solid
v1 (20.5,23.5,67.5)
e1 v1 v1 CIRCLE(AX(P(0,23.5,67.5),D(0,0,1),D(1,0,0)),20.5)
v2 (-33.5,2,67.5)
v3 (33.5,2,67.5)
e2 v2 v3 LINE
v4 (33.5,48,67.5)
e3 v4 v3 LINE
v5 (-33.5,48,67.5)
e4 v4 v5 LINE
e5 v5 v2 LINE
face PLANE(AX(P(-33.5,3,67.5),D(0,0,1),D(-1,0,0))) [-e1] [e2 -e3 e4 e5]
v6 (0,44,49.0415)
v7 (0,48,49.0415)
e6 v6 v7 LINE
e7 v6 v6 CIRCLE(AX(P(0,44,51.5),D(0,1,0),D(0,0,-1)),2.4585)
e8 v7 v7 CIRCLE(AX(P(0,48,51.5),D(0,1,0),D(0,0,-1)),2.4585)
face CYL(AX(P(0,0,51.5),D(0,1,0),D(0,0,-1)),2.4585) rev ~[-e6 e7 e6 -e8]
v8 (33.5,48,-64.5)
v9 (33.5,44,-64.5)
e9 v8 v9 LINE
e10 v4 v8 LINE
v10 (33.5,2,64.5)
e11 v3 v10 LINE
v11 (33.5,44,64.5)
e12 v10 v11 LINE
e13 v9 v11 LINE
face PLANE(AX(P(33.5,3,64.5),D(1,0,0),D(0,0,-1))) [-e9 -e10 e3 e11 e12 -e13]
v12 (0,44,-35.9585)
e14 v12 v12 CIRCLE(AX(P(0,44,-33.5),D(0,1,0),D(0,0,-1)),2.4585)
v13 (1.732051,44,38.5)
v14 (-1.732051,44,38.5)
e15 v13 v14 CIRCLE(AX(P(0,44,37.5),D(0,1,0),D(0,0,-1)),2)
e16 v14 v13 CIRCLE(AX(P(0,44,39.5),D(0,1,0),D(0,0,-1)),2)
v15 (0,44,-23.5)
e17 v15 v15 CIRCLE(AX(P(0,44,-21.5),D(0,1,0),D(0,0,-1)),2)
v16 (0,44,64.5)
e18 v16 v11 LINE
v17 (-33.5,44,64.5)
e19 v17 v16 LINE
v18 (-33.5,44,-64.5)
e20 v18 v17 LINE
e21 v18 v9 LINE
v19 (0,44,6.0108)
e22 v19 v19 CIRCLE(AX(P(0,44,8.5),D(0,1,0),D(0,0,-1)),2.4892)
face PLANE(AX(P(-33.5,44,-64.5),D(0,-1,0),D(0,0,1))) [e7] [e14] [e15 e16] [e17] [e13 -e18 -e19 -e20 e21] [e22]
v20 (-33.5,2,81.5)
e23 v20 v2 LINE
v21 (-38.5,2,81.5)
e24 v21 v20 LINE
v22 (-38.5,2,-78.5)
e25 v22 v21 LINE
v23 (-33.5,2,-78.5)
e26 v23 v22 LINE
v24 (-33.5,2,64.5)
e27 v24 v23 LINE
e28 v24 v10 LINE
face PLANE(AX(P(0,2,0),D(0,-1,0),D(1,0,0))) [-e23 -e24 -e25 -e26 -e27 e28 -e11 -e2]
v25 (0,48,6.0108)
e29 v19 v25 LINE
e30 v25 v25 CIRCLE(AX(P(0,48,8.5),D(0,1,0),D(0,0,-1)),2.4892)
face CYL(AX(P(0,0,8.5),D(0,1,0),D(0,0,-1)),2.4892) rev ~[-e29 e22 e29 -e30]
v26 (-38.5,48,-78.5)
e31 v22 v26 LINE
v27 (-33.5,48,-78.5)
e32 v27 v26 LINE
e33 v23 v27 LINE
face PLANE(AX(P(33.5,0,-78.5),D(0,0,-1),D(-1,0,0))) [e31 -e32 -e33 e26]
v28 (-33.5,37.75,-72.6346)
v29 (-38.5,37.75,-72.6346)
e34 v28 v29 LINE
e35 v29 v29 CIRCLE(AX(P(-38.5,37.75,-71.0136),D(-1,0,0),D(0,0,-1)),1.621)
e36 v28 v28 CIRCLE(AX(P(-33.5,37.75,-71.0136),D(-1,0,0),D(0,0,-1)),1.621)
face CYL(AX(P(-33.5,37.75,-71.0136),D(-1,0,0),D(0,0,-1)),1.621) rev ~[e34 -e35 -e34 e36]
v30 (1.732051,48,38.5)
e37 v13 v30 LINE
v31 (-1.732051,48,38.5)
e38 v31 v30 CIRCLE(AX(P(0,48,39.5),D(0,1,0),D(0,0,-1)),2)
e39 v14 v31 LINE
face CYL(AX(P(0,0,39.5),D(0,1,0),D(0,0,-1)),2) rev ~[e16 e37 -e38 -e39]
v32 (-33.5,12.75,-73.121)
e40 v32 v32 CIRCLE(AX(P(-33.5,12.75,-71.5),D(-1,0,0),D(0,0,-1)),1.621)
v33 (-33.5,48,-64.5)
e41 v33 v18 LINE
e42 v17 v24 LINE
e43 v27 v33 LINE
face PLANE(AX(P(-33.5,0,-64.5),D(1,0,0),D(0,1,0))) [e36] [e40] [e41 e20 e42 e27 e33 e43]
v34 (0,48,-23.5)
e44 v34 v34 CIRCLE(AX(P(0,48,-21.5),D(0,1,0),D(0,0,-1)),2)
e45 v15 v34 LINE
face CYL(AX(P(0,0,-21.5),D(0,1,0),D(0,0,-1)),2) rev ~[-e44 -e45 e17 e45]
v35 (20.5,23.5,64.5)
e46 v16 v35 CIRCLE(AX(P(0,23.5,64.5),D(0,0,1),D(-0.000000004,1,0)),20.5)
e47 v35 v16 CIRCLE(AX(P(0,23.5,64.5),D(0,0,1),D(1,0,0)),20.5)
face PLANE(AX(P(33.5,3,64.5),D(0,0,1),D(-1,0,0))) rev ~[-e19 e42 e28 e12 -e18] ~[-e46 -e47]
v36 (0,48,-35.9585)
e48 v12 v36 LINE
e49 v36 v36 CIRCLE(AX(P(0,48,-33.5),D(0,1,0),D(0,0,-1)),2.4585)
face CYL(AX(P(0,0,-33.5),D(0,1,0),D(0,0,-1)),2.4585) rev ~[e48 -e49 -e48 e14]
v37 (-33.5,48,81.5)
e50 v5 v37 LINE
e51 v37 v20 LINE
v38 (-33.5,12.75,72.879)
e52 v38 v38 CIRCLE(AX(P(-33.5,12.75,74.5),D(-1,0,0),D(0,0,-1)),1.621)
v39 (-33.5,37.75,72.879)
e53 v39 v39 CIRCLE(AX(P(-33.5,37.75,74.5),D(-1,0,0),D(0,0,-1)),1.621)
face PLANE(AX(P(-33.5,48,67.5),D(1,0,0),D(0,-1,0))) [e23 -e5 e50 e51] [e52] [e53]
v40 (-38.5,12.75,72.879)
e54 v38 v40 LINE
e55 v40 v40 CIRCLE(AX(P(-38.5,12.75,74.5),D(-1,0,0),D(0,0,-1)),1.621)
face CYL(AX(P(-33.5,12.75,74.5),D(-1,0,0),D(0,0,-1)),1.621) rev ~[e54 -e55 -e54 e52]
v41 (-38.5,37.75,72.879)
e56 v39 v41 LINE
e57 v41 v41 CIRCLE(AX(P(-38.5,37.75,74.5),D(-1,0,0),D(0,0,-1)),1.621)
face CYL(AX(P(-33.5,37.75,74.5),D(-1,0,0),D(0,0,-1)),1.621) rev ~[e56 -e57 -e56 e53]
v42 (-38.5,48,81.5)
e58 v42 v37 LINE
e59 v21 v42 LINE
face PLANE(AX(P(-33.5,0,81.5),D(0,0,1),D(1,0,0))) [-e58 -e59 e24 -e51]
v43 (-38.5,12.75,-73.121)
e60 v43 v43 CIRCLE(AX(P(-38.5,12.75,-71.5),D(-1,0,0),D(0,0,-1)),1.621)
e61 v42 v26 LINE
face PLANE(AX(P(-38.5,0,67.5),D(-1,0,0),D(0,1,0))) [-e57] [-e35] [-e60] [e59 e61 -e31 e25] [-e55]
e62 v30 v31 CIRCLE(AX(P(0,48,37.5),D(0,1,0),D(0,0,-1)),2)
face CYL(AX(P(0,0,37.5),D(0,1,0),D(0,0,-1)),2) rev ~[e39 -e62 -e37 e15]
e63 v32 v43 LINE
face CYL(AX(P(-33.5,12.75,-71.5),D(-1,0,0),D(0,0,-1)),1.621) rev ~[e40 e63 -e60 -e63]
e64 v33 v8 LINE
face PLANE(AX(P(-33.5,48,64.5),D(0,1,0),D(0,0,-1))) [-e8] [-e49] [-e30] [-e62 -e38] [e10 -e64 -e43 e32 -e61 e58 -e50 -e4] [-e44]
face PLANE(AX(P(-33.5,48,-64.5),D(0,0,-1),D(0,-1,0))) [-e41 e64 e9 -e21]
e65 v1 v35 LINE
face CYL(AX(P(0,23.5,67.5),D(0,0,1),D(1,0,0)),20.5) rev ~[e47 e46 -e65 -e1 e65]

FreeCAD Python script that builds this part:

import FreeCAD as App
import Part
import Sketcher
from FreeCAD import Vector

doc = App.newDocument("Part")
body = doc.addObject("PartDesign::Body", "Body")

# Sketch on XZ plane
sketch1 = body.newObject("Sketcher::SketchObject", "Sketch")
sketch1.AttachmentSupport = (doc.getObject("XZ_Plane"), [""])
sketch1.MapMode = "FlatFace"
sketch1.addGeometry([
    Part.LineSegment(Vector(-33.5, -64.5, 0), Vector(-33.5, 64.5, 0)),
    Part.LineSegment(Vector(-33.5, 64.5, 0), Vector(33.5, 64.5, 0)),
    Part.LineSegment(Vector(33.5, 64.5, 0), Vector(33.5, -64.5, 0)),
    Part.LineSegment(Vector(33.5, -64.5, 0), Vector(-33.5, -64.5, 0)),
], False)
sketch1.addConstraint([
    Sketcher.Constraint("Coincident", 0, 2, 1, 1),
    Sketcher.Constraint("Coincident", 1, 2, 2, 1),
    Sketcher.Constraint("Coincident", 2, 2, 3, 1),
    Sketcher.Constraint("Coincident", 3, 2, 0, 1),
    Sketcher.Constraint("Vertical", 0),
    Sketcher.Constraint("Horizontal", 1),
    Sketcher.Constraint("Vertical", 2),
    Sketcher.Constraint("Horizontal", 3),
    Sketcher.Constraint("Symmetric", 0, 2, 2, 2, -1, 1),
    Sketcher.Constraint("DistanceX", 1, 1, 1, 2, 67.0),
    Sketcher.Constraint("DistanceY", 0, 1, 0, 2, 129.0),
])
pad1 = body.newObject("PartDesign::Pad", "Pad")
pad1.Profile = sketch1
pad1.Length = 3
pad1.Reversed = True

# Sketch on XZ plane
sketch2 = body.newObject("Sketcher::SketchObject", "Sketch001")
sketch2.AttachmentSupport = (doc.getObject("XZ_Plane"), [""])
sketch2.MapMode = "FlatFace"
sketch2.addGeometry([
    Part.Circle(Vector(0, 51.5, 0), Vector(0, 0, 1), 2.4585),
    Part.Circle(Vector(0, -33.5, 0), Vector(0, 0, 1), 2.4585),
], False)
sketch2.addConstraint([
    Sketcher.Constraint("Equal", 0, 1),
    Sketcher.Constraint("PointOnObject", 0, 3, -2),
    Sketcher.Constraint("PointOnObject", 1, 3, -2),
    Sketcher.Constraint("Diameter", 0, 4.917),
    Sketcher.Constraint("DistanceY", 1, 3, 0, 3, 85.0),
    Sketcher.Constraint("DistanceY", -1, 1, 0, 3, 51.5),
])
doc.recompute()
hole = body.newObject("PartDesign::Hole", "Hole")
hole.Profile = sketch2
hole.ThreadType = "None"
hole.Diameter = 4.917
hole.DepthType = "Dimension"
hole.Depth = 17.1
hole.DrillPoint = "Flat"

# Sketch on XZ plane
sketch3 = body.newObject("Sketcher::SketchObject", "Sketch002")
sketch3.AttachmentSupport = (doc.getObject("XZ_Plane"), [""])
sketch3.MapMode = "FlatFace"
sketch3.addGeometry([
    Part.Circle(Vector(0, -21.5, 0), Vector(0, 0, 1), 2),
    Part.Circle(Vector(0, 39.5, 0), Vector(0, 0, 1), 2),
    Part.Circle(Vector(0, 37.5, 0), Vector(0, 0, 1), 2),
], False)
sketch3.addConstraint([
    Sketcher.Constraint("Equal", 0, 1),
    Sketcher.Constraint("Equal", 1, 2),
    Sketcher.Constraint("PointOnObject", 0, 3, -2),
    Sketcher.Constraint("PointOnObject", 1, 3, -2),
    Sketcher.Constraint("PointOnObject", 2, 3, -2),
    Sketcher.Constraint("Diameter", 0, 4.0),
    Sketcher.Constraint("DistanceY", 0, 3, 1, 3, 61.0),
    Sketcher.Constraint("DistanceY", 2, 3, 1, 3, 2.0),
    Sketcher.Constraint("DistanceY", 0, 3, -1, 1, 21.5),
])
doc.recompute()
hole2 = body.newObject("PartDesign::Hole", "Hole001")
hole2.Profile = sketch3
hole2.ThreadType = "None"
hole2.Diameter = 4
hole2.DepthType = "Dimension"
hole2.Depth = 17.1
hole2.DrillPoint = "Flat"

# Sketch on XZ plane
sketch4 = body.newObject("Sketcher::SketchObject", "Sketch003")
sketch4.AttachmentSupport = (doc.getObject("XZ_Plane"), [""])
sketch4.MapMode = "FlatFace"
sketch4.addGeometry(Part.Circle(Vector(0, 8.5, 0), Vector(0, 0, 1), 2.4892), False)
sketch4.addConstraint([
    Sketcher.Constraint("PointOnObject", 0, 3, -2),
    Sketcher.Constraint("Diameter", 0, 4.9784),
    Sketcher.Constraint("DistanceY", -1, 1, 0, 3, 8.5),
])
doc.recompute()
hole3 = body.newObject("PartDesign::Hole", "Hole002")
hole3.Profile = sketch4
hole3.ThreadType = "None"
hole3.Diameter = 4.9784
hole3.DepthType = "Dimension"
hole3.Depth = 19.05
hole3.DrillPoint = "Flat"

# Sketch on XY plane
sketch5 = body.newObject("Sketcher::SketchObject", "Sketch004")
sketch5.AttachmentSupport = (doc.getObject("XY_Plane"), [""])
sketch5.MapMode = "FlatFace"
sketch5.AttachmentOffset = App.Placement(Vector(0, 0, 64.5), App.Rotation())
sketch5.addGeometry([
    Part.LineSegment(Vector(33.5, 3, 0), Vector(-33.5, 3, 0)),
    Part.LineSegment(Vector(-33.5, 3, 0), Vector(-33.5, 0, 0)),
    Part.LineSegment(Vector(-33.5, 0, 0), Vector(33.5, 0, 0)),
    Part.LineSegment(Vector(33.5, 0, 0), Vector(33.5, 3, 0)),
], False)
sketch5.addConstraint([
    Sketcher.Constraint("Coincident", 0, 2, 1, 1),
    Sketcher.Constraint("Coincident", 1, 2, 2, 1),
    Sketcher.Constraint("Coincident", 2, 2, 3, 1),
    Sketcher.Constraint("Coincident", 3, 2, 0, 1),
    Sketcher.Constraint("Horizontal", 0),
    Sketcher.Constraint("Vertical", 1),
    Sketcher.Constraint("Horizontal", 2),
    Sketcher.Constraint("Vertical", 3),
    Sketcher.Constraint("Symmetric", 1, 2, 2, 2, -1, 1),
    Sketcher.Constraint("DistanceX", 0, 2, 0, 1, 67.0),
    Sketcher.Constraint("DistanceY", 1, 2, 1, 1, 3.0),
])
pad2 = body.newObject("PartDesign::Pad", "Pad001")
pad2.Profile = sketch5
pad2.Length = 3

# Sketch on XZ plane
sketch6 = body.newObject("Sketcher::SketchObject", "Sketch005")
sketch6.AttachmentSupport = (doc.getObject("XZ_Plane"), [""])
sketch6.MapMode = "FlatFace"
sketch6.AttachmentOffset = App.Placement(Vector(0, 0, -3), App.Rotation())
sketch6.addGeometry([
    Part.LineSegment(Vector(33.5, 64.5, 0), Vector(-33.5, 64.5, 0)),
    Part.LineSegment(Vector(-33.5, 64.5, 0), Vector(-33.5, 67.5, 0)),
    Part.LineSegment(Vector(-33.5, 67.5, 0), Vector(33.5, 67.5, 0)),
    Part.LineSegment(Vector(33.5, 67.5, 0), Vector(33.5, 64.5, 0)),
], False)
sketch6.addConstraint([
    Sketcher.Constraint("Coincident", 0, 2, 1, 1),
    Sketcher.Constraint("Coincident", 1, 2, 2, 1),
    Sketcher.Constraint("Coincident", 2, 2, 3, 1),
    Sketcher.Constraint("Coincident", 3, 2, 0, 1),
    Sketcher.Constraint("Horizontal", 0),
    Sketcher.Constraint("Vertical", 1),
    Sketcher.Constraint("Horizontal", 2),
    Sketcher.Constraint("Vertical", 3),
    Sketcher.Constraint("DistanceY", 1, 1, 1, 2, 3.0),
    Sketcher.Constraint("DistanceX", 0, 2, 0, 1, 67.0),
    Sketcher.Constraint("DistanceX", 0, 2, -1, 1, 33.5),
    Sketcher.Constraint("DistanceY", -1, 1, 0, 2, 64.5),
])
pad3 = body.newObject("PartDesign::Pad", "Pad002")
pad3.Profile = sketch6
pad3.Length = 45
pad3.Reversed = True

# Sketch on XY plane
sketch7 = body.newObject("Sketcher::SketchObject", "Sketch006")
sketch7.AttachmentSupport = (doc.getObject("XY_Plane"), [""])
sketch7.MapMode = "FlatFace"
sketch7.AttachmentOffset = App.Placement(Vector(0, 0, 67.5), App.Rotation())
sketch7.addGeometry(Part.Circle(Vector(0, 23.5, 0), Vector(0, 0, 1), 20.5), False)
sketch7.addConstraint([
    Sketcher.Constraint("PointOnObject", 0, 3, -2),
    Sketcher.Constraint("Diameter", 0, 41.0),
    Sketcher.Constraint("DistanceY", -1, 1, 0, 3, 23.5),
])
pocket1 = body.newObject("PartDesign::Pocket", "Pocket")
pocket1.Profile = sketch7
pocket1.Length = 45

# Sketch on YZ plane
sketch8 = body.newObject("Sketcher::SketchObject", "Sketch007")
sketch8.AttachmentSupport = (doc.getObject("YZ_Plane"), [""])
sketch8.MapMode = "FlatFace"
sketch8.AttachmentOffset = App.Placement(Vector(0, 0, -33.5), App.Rotation())
sketch8.addGeometry([
    Part.LineSegment(Vector(3, -64.5, 0), Vector(0, -64.5, 0)),
    Part.LineSegment(Vector(0, -64.5, 0), Vector(0, 67.5, 0)),
    Part.LineSegment(Vector(0, 67.5, 0), Vector(3, 67.5, 0)),
    Part.LineSegment(Vector(3, 67.5, 0), Vector(3, -64.5, 0)),
], False)
sketch8.addConstraint([
    Sketcher.Constraint("Coincident", 0, 2, 1, 1),
    Sketcher.Constraint("Coincident", 1, 2, 2, 1),
    Sketcher.Constraint("Coincident", 2, 2, 3, 1),
    Sketcher.Constraint("Coincident", 3, 2, 0, 1),
    Sketcher.Constraint("Horizontal", 0),
    Sketcher.Constraint("Vertical", 1),
    Sketcher.Constraint("Horizontal", 2),
    Sketcher.Constraint("Vertical", 3),
    Sketcher.Constraint("PointOnObject", 0, 2, -2),
    Sketcher.Constraint("DistanceX", 0, 2, 0, 1, 3.0),
    Sketcher.Constraint("DistanceY", 1, 1, 1, 2, 132.0),
    Sketcher.Constraint("DistanceY", 0, 2, -1, 1, 64.5),
])
pad4 = body.newObject("PartDesign::Pad", "Pad003")
pad4.Profile = sketch8
pad4.Length = 5
pad4.Reversed = True

# Sketch on XZ plane
sketch9 = body.newObject("Sketcher::SketchObject", "Sketch008")
sketch9.AttachmentSupport = (doc.getObject("XZ_Plane"), [""])
sketch9.MapMode = "FlatFace"
sketch9.AttachmentOffset = App.Placement(Vector(0, 0, -3), App.Rotation())
sketch9.addGeometry([
    Part.LineSegment(Vector(-38.5, 67.5, 0), Vector(-33.5, 67.5, 0)),
    Part.LineSegment(Vector(-33.5, 67.5, 0), Vector(-33.5, -64.5, 0)),
    Part.LineSegment(Vector(-33.5, -64.5, 0), Vector(-38.5, -64.5, 0)),
    Part.LineSegment(Vector(-38.5, -64.5, 0), Vector(-38.5, 67.5, 0)),
], False)
sketch9.addConstraint([
    Sketcher.Constraint("Coincident", 0, 2, 1, 1),
    Sketcher.Constraint("Coincident", 1, 2, 2, 1),
    Sketcher.Constraint("Coincident", 2, 2, 3, 1),
    Sketcher.Constraint("Coincident", 3, 2, 0, 1),
    Sketcher.Constraint("Horizontal", 0),
    Sketcher.Constraint("Vertical", 1),
    Sketcher.Constraint("Horizontal", 2),
    Sketcher.Constraint("Vertical", 3),
    Sketcher.Constraint("DistanceX", 0, 1, 0, 2, 5.0),
    Sketcher.Constraint("DistanceY", 1, 2, 1, 1, 132.0),
    Sketcher.Constraint("DistanceX", 0, 2, -1, 1, 33.5),
    Sketcher.Constraint("DistanceY", -1, 1, 0, 2, 67.5),
])
pad5 = body.newObject("PartDesign::Pad", "Pad004")
pad5.Profile = sketch9
pad5.Length = 45
pad5.Reversed = True

# Sketch on XY plane
sketch10 = body.newObject("Sketcher::SketchObject", "Sketch009")
sketch10.AttachmentSupport = (doc.getObject("XY_Plane"), [""])
sketch10.MapMode = "FlatFace"
sketch10.AttachmentOffset = App.Placement(Vector(0, 0, -64.5), App.Rotation())
sketch10.addGeometry([
    Part.LineSegment(Vector(-33.5, 0, 0), Vector(-38.5, 0, 0)),
    Part.LineSegment(Vector(-38.5, 0, 0), Vector(-38.5, 48, 0)),
    Part.LineSegment(Vector(-38.5, 48, 0), Vector(-33.5, 48, 0)),
    Part.LineSegment(Vector(-33.5, 48, 0), Vector(-33.5, 0, 0)),
], False)
sketch10.addConstraint([
    Sketcher.Constraint("Coincident", 0, 2, 1, 1),
    Sketcher.Constraint("Coincident", 1, 2, 2, 1),
    Sketcher.Constraint("Coincident", 2, 2, 3, 1),
    Sketcher.Constraint("Coincident", 3, 2, 0, 1),
    Sketcher.Constraint("Horizontal", 0),
    Sketcher.Constraint("Vertical", 1),
    Sketcher.Constraint("Horizontal", 2),
    Sketcher.Constraint("Vertical", 3),
    Sketcher.Constraint("PointOnObject", 0, 2, -1),
    Sketcher.Constraint("DistanceX", 0, 2, 0, 1, 5.0),
    Sketcher.Constraint("DistanceY", 1, 1, 1, 2, 48.0),
    Sketcher.Constraint("DistanceX", 0, 2, -1, 1, 38.5),
])
pad6 = body.newObject("PartDesign::Pad", "Pad005")
pad6.Profile = sketch10
pad6.Length = 14
pad6.Reversed = True

# Sketch on XY plane
sketch11 = body.newObject("Sketcher::SketchObject", "Sketch010")
sketch11.AttachmentSupport = (doc.getObject("XY_Plane"), [""])
sketch11.MapMode = "FlatFace"
sketch11.AttachmentOffset = App.Placement(Vector(0, 0, 67.5), App.Rotation())
sketch11.addGeometry([
    Part.LineSegment(Vector(-38.5, 48, 0), Vector(-38.5, 0, 0)),
    Part.LineSegment(Vector(-38.5, 0, 0), Vector(-33.5, 0, 0)),
    Part.LineSegment(Vector(-33.5, 0, 0), Vector(-33.5, 48, 0)),
    Part.LineSegment(Vector(-33.5, 48, 0), Vector(-38.5, 48, 0)),
], False)
sketch11.addConstraint([
    Sketcher.Constraint("Coincident", 0, 2, 1, 1),
    Sketcher.Constraint("Coincident", 1, 2, 2, 1),
    Sketcher.Constraint("Coincident", 2, 2, 3, 1),
    Sketcher.Constraint("Coincident", 3, 2, 0, 1),
    Sketcher.Constraint("Vertical", 0),
    Sketcher.Constraint("Horizontal", 1),
    Sketcher.Constraint("Vertical", 2),
    Sketcher.Constraint("Horizontal", 3),
    Sketcher.Constraint("PointOnObject", 0, 2, -1),
    Sketcher.Constraint("DistanceX", 1, 1, 1, 2, 5.0),
    Sketcher.Constraint("DistanceY", 0, 2, 0, 1, 48.0),
    Sketcher.Constraint("DistanceX", 0, 2, -1, 1, 38.5),
])
pad7 = body.newObject("PartDesign::Pad", "Pad006")
pad7.Profile = sketch11
pad7.Length = 14

# Sketch on YZ plane
sketch12 = body.newObject("Sketcher::SketchObject", "Sketch011")
sketch12.AttachmentSupport = (doc.getObject("YZ_Plane"), [""])
sketch12.MapMode = "FlatFace"
sketch12.AttachmentOffset = App.Placement(Vector(0, 0, -33.5), App.Rotation())
sketch12.addGeometry([
    Part.Circle(Vector(37.75, -71.0136, 0), Vector(0, 0, 1), 1.621),
    Part.Circle(Vector(12.75, -71.5, 0), Vector(0, 0, 1), 1.621),
    Part.Circle(Vector(37.75, 74.5, 0), Vector(0, 0, 1), 1.621),
    Part.Circle(Vector(12.75, 74.5, 0), Vector(0, 0, 1), 1.621),
], False)
sketch12.addConstraint([
    Sketcher.Constraint("Equal", 0, 1),
    Sketcher.Constraint("Equal", 1, 2),
    Sketcher.Constraint("Equal", 2, 3),
    Sketcher.Constraint("Horizontal", 2, 3, 3, 3),
    Sketcher.Constraint("Vertical", 0, 3, 2, 3),
    Sketcher.Constraint("Vertical", 1, 3, 3, 3),
    Sketcher.Constraint("Diameter", 0, 3.242),
    Sketcher.Constraint("DistanceX", 1, 3, 0, 3, 25.0),
    Sketcher.Constraint("DistanceY", 1, 3, 2, 3, 146.0),
    Sketcher.Constraint("DistanceY", 1, 3, -1, 1, 71.5),
    Sketcher.Constraint("DistanceX", -1, 1, 0, 3, 37.75),
    Sketcher.Constraint("DistanceY", 0, 3, -1, 1, 71.0136),
])
doc.recompute()
hole4 = body.newObject("PartDesign::Hole", "Hole003")
hole4.Profile = sketch12
hole4.ThreadType = "None"
hole4.Diameter = 3.242
hole4.DepthType = "Dimension"
hole4.Depth = 10
hole4.DrillPoint = "Angled"
hole4.DrillPointAngle = 118

# Sketch on YZ plane
sketch13 = body.newObject("Sketcher::SketchObject", "Sketch012")
sketch13.AttachmentSupport = (doc.getObject("YZ_Plane"), [""])
sketch13.MapMode = "FlatFace"
sketch13.AttachmentOffset = App.Placement(Vector(0, 0, -33.5), App.Rotation())
sketch13.addGeometry([
    Part.LineSegment(Vector(48, -64.5, 0), Vector(48, 64.5, 0)),
    Part.LineSegment(Vector(48, 64.5, 0), Vector(44, 64.5, 0)),
    Part.LineSegment(Vector(44, 64.5, 0), Vector(44, -64.5, 0)),
    Part.LineSegment(Vector(44, -64.5, 0), Vector(48, -64.5, 0)),
], False)
sketch13.addConstraint([
    Sketcher.Constraint("Coincident", 0, 2, 1, 1),
    Sketcher.Constraint("Coincident", 1, 2, 2, 1),
    Sketcher.Constraint("Coincident", 2, 2, 3, 1),
    Sketcher.Constraint("Coincident", 3, 2, 0, 1),
    Sketcher.Constraint("Vertical", 0),
    Sketcher.Constraint("Horizontal", 1),
    Sketcher.Constraint("Vertical", 2),
    Sketcher.Constraint("Horizontal", 3),
    Sketcher.Constraint("DistanceX", 1, 2, 1, 1, 4.0),
    Sketcher.Constraint("DistanceY", 0, 1, 0, 2, 129.0),
    Sketcher.Constraint("DistanceX", -1, 1, 0, 2, 48.0),
    Sketcher.Constraint("DistanceY", -1, 1, 0, 2, 64.5),
])
pad8 = body.newObject("PartDesign::Pad", "Pad007")
pad8.Profile = sketch13
pad8.Length = 67

# Sketch on XZ plane
sketch14 = body.newObject("Sketcher::SketchObject", "Sketch013")
sketch14.AttachmentSupport = (doc.getObject("XZ_Plane"), [""])
sketch14.MapMode = "FlatFace"
sketch14.addGeometry([
    Part.Circle(Vector(0, 51.5, 0), Vector(0, 0, 1), 2.4585),
    Part.Circle(Vector(0, -33.5, 0), Vector(0, 0, 1), 2.4585),
], False)
sketch14.addConstraint([
    Sketcher.Constraint("Equal", 0, 1),
    Sketcher.Constraint("PointOnObject", 0, 3, -2),
    Sketcher.Constraint("PointOnObject", 1, 3, -2),
    Sketcher.Constraint("Diameter", 0, 4.917),
    Sketcher.Constraint("DistanceY", 1, 3, 0, 3, 85.0),
    Sketcher.Constraint("DistanceY", -1, 1, 0, 3, 51.5),
])
doc.recompute()
hole5 = body.newObject("PartDesign::Hole", "Hole004")
hole5.Profile = sketch14
hole5.ThreadType = "None"
hole5.Diameter = 4.917
hole5.DepthType = "ThroughAll"

# Sketch on XZ plane
sketch15 = body.newObject("Sketcher::SketchObject", "Sketch014")
sketch15.AttachmentSupport = (doc.getObject("XZ_Plane"), [""])
sketch15.MapMode = "FlatFace"
sketch15.addGeometry(Part.Circle(Vector(0, 8.5, 0), Vector(0, 0, 1), 2.4892), False)
sketch15.addConstraint([
    Sketcher.Constraint("PointOnObject", 0, 3, -2),
    Sketcher.Constraint("Diameter", 0, 4.9784),
    Sketcher.Constraint("DistanceY", -1, 1, 0, 3, 8.5),
])
doc.recompute()
hole6 = body.newObject("PartDesign::Hole", "Hole005")
hole6.Profile = sketch15
hole6.ThreadType = "None"
hole6.Diameter = 4.9784
hole6.DepthType = "ThroughAll"

# Sketch on XZ plane
sketch16 = body.newObject("Sketcher::SketchObject", "Sketch015")
sketch16.AttachmentSupport = (doc.getObject("XZ_Plane"), [""])
sketch16.MapMode = "FlatFace"
sketch16.addGeometry([
    Part.Circle(Vector(0, -21.5, 0), Vector(0, 0, 1), 2),
    Part.Circle(Vector(0, 39.5, 0), Vector(0, 0, 1), 2),
    Part.Circle(Vector(0, 37.5, 0), Vector(0, 0, 1), 2),
], False)
sketch16.addConstraint([
    Sketcher.Constraint("Equal", 0, 1),
    Sketcher.Constraint("Equal", 1, 2),
    Sketcher.Constraint("PointOnObject", 0, 3, -2),
    Sketcher.Constraint("PointOnObject", 1, 3, -2),
    Sketcher.Constraint("PointOnObject", 2, 3, -2),
    Sketcher.Constraint("Diameter", 0, 4.0),
    Sketcher.Constraint("DistanceY", 0, 3, 1, 3, 61.0),
    Sketcher.Constraint("DistanceY", 2, 3, 1, 3, 2.0),
    Sketcher.Constraint("DistanceY", 0, 3, -1, 1, 21.5),
])
doc.recompute()
hole7 = body.newObject("PartDesign::Hole", "Hole006")
hole7.Profile = sketch16
hole7.ThreadType = "None"
hole7.Diameter = 4
hole7.DepthType = "ThroughAll"

# Sketch on XZ plane
sketch17 = body.newObject("Sketcher::SketchObject", "Sketch016")
sketch17.AttachmentSupport = (doc.getObject("XZ_Plane"), [""])
sketch17.MapMode = "FlatFace"
sketch17.AttachmentOffset = App.Placement(Vector(0, 0, -3), App.Rotation())
sketch17.addGeometry([
    Part.LineSegment(Vector(33.5, -64.5, 0), Vector(-33.5, -64.5, 0)),
    Part.LineSegment(Vector(-33.5, -64.5, 0), Vector(-33.5, 64.5, 0)),
    Part.LineSegment(Vector(-33.5, 64.5, 0), Vector(33.5, 64.5, 0)),
    Part.LineSegment(Vector(33.5, 64.5, 0), Vector(33.5, -64.5, 0)),
], False)
sketch17.addConstraint([
    Sketcher.Constraint("Coincident", 0, 2, 1, 1),
    Sketcher.Constraint("Coincident", 1, 2, 2, 1),
    Sketcher.Constraint("Coincident", 2, 2, 3, 1),
    Sketcher.Constraint("Coincident", 3, 2, 0, 1),
    Sketcher.Constraint("Horizontal", 0),
    Sketcher.Constraint("Vertical", 1),
    Sketcher.Constraint("Horizontal", 2),
    Sketcher.Constraint("Vertical", 3),
    Sketcher.Constraint("Symmetric", 0, 2, 2, 2, -1, 1),
    Sketcher.Constraint("DistanceX", 0, 2, 0, 1, 67.0),
    Sketcher.Constraint("DistanceY", 1, 1, 1, 2, 129.0),
])
pocket2 = body.newObject("PartDesign::Pocket", "Pocket001")
pocket2.Profile = sketch17
pocket2.Length = 10
pocket2.Reversed = True

# Sketch on XZ plane
sketch18 = body.newObject("Sketcher::SketchObject", "Sketch017")
sketch18.AttachmentSupport = (doc.getObject("XZ_Plane"), [""])
sketch18.MapMode = "FlatFace"
sketch18.addGeometry([
    Part.LineSegment(Vector(58.5292, -131.0093, 0), Vector(58.5292, 135.8199, 0)),
    Part.LineSegment(Vector(58.5292, 135.8199, 0), Vector(-75.2061, 135.8199, 0)),
    Part.LineSegment(Vector(-75.2061, 135.8199, 0), Vector(-75.2061, -131.0093, 0)),
    Part.LineSegment(Vector(-75.2061, -131.0093, 0), Vector(58.5292, -131.0093, 0)),
], False)
sketch18.addConstraint([
    Sketcher.Constraint("Coincident", 0, 2, 1, 1),
    Sketcher.Constraint("Coincident", 1, 2, 2, 1),
    Sketcher.Constraint("Coincident", 2, 2, 3, 1),
    Sketcher.Constraint("Coincident", 3, 2, 0, 1),
    Sketcher.Constraint("Vertical", 0),
    Sketcher.Constraint("Horizontal", 1),
    Sketcher.Constraint("Vertical", 2),
    Sketcher.Constraint("Horizontal", 3),
    Sketcher.Constraint("DistanceY", -1, 1, 0, 2, 135.82),
    Sketcher.Constraint("DistanceX", 1, 2, 1, 1, 133.7353),
    Sketcher.Constraint("DistanceY", 0, 1, 0, 2, 266.8292),
    Sketcher.Constraint("DistanceX", 1, 2, -1, 1, 75.206),
])
pocket3 = body.newObject("PartDesign::Pocket", "Pocket002")
pocket3.Profile = sketch18
pocket3.Length = 2

doc.recompute()
